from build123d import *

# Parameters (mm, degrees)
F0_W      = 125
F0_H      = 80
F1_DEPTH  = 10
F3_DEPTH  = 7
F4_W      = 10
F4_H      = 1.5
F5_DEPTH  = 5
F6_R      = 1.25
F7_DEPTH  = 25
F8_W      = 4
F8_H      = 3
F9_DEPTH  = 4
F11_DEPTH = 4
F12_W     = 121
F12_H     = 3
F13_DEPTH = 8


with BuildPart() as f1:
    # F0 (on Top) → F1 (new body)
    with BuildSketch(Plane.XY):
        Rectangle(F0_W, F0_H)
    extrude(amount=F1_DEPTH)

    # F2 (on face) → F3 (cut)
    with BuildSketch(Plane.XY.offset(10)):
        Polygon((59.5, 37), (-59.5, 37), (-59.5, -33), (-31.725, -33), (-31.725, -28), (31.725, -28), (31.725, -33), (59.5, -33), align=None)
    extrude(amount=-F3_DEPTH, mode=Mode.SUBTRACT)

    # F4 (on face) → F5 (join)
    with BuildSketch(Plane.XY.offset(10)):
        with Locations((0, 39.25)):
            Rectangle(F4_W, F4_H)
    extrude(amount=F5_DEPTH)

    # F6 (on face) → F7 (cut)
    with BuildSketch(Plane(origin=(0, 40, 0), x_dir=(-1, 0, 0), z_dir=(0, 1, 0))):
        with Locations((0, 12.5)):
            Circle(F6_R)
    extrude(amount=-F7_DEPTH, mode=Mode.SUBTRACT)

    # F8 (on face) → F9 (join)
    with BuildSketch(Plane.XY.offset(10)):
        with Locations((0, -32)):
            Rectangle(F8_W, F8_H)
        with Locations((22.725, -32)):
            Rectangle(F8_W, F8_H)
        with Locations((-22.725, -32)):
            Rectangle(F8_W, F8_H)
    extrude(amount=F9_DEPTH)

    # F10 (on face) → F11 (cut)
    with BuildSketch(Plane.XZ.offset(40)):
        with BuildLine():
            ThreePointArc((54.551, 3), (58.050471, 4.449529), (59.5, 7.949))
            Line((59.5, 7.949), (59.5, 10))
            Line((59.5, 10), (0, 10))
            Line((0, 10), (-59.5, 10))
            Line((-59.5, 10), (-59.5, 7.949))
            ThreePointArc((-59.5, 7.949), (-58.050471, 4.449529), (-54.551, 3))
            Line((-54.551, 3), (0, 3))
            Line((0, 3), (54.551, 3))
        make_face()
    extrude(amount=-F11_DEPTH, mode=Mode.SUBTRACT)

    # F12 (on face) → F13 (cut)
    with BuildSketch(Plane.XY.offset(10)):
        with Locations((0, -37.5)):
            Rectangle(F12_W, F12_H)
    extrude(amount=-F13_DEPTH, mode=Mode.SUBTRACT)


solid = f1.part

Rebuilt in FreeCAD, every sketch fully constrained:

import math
import FreeCAD as App
import Part
import Sketcher

V = App.Vector

doc = App.newDocument("Part")
params = doc.addObject("Spreadsheet::Sheet", "Params")
for row, (alias, value) in enumerate([
    ("sketch1_width", "125 mm"),
    ("sketch1_height", "80 mm"),
    ("pad1_length", "10 mm"),
    ("sketch2_width", "119 mm"),
    ("sketch2_height", "70 mm"),
    ("sketch2_height2", "5 mm"),
    ("sketch2_width2", "63.45 mm"),
    ("pocket1_length", "7 mm"),
    ("sketch3_width", "10 mm"),
    ("sketch3_height", "1.5 mm"),
    ("pad2_length", "5 mm"),
    ("sketch4_diameter", "2.5 mm"),
    ("pocket2_length", "25 mm"),
    ("sketch5_width", "4 mm"),
    ("sketch5_height", "3 mm"),
    ("pad3_length", "4 mm"),
    ("sketch6_width", "119 mm"),
    ("pocket3_length", "4 mm"),
    ("sketch7_width", "121 mm"),
    ("sketch7_height", "3 mm"),
    ("pocket4_length", "8 mm"),
], start=1):
    params.set(f"A{row}", alias)
    params.set(f"B{row}", "=" + value)
    params.setAlias(f"B{row}", alias)

body = doc.addObject("PartDesign::Body", "Body")

# Sketch on XY plane
sketch1 = body.newObject("Sketcher::SketchObject", "Sketch")
sketch1.AttachmentSupport = (doc.getObject("XY_Plane"), [""])
sketch1.MapMode = "FlatFace"
sketch1.addGeometry(Part.LineSegment(V(-62.5, 40, 0), V(-62.5, -40, 0)), False)
sketch1.addGeometry(Part.LineSegment(V(-62.5, -40, 0), V(62.5, -40, 0)), False)
sketch1.addGeometry(Part.LineSegment(V(62.5, -40, 0), V(62.5, 40, 0)), False)
sketch1.addGeometry(Part.LineSegment(V(62.5, 40, 0), V(-62.5, 40, 0)), False)
sketch1.addConstraint(Sketcher.Constraint("Coincident", 0, 2, 1, 1))
sketch1.addConstraint(Sketcher.Constraint("Coincident", 1, 2, 2, 1))
sketch1.addConstraint(Sketcher.Constraint("Coincident", 2, 2, 3, 1))
sketch1.addConstraint(Sketcher.Constraint("Coincident", 3, 2, 0, 1))
sketch1.addConstraint(Sketcher.Constraint("Vertical", 0))
sketch1.addConstraint(Sketcher.Constraint("Horizontal", 1))
sketch1.addConstraint(Sketcher.Constraint("Vertical", 2))
sketch1.addConstraint(Sketcher.Constraint("Horizontal", 3))
sketch1.addConstraint(Sketcher.Constraint("Symmetric", 0, 2, 2, 2, -1, 1))
sketch1.addConstraint(Sketcher.Constraint("DistanceX", 1, 1, 1, 2, 125.0))
sketch1.addConstraint(Sketcher.Constraint("DistanceY", 0, 2, 0, 1, 80.0))
sketch1.setExpression("Constraints[9]", "Params.sketch1_width")
sketch1.setExpression("Constraints[10]", "Params.sketch1_height")
pad1 = body.newObject("PartDesign::Pad", "Pad")
pad1.Profile = sketch1
pad1.setExpression("Length", "Params.pad1_length")

# Sketch on XY plane
sketch2 = body.newObject("Sketcher::SketchObject", "Sketch001")
sketch2.AttachmentSupport = (doc.getObject("XY_Plane"), [""])
sketch2.MapMode = "FlatFace"
sketch2.AttachmentOffset = App.Placement(V(0, 0, 10), App.Rotation())
sketch2.addGeometry(Part.LineSegment(V(59.5, 37, 0), V(-59.5, 37, 0)), False)
sketch2.addGeometry(Part.LineSegment(V(-59.5, 37, 0), V(-59.5, -33, 0)), False)
sketch2.addGeometry(Part.LineSegment(V(-59.5, -33, 0), V(-31.725, -33, 0)), False)
sketch2.addGeometry(Part.LineSegment(V(-31.725, -33, 0), V(-31.725, -28, 0)), False)
sketch2.addGeometry(Part.LineSegment(V(-31.725, -28, 0), V(31.725, -28, 0)), False)
sketch2.addGeometry(Part.LineSegment(V(31.725, -28, 0), V(31.725, -33, 0)), False)
sketch2.addGeometry(Part.LineSegment(V(31.725, -33, 0), V(59.5, -33, 0)), False)
sketch2.addGeometry(Part.LineSegment(V(59.5, -33, 0), V(59.5, 37, 0)), False)
sketch2.addConstraint(Sketcher.Constraint("Coincident", 0, 2, 1, 1))
sketch2.addConstraint(Sketcher.Constraint("Coincident", 1, 2, 2, 1))
sketch2.addConstraint(Sketcher.Constraint("Coincident", 2, 2, 3, 1))
sketch2.addConstraint(Sketcher.Constraint("Coincident", 3, 2, 4, 1))
sketch2.addConstraint(Sketcher.Constraint("Coincident", 4, 2, 5, 1))
sketch2.addConstraint(Sketcher.Constraint("Coincident", 5, 2, 6, 1))
sketch2.addConstraint(Sketcher.Constraint("Coincident", 6, 2, 7, 1))
sketch2.addConstraint(Sketcher.Constraint("Coincident", 7, 2, 0, 1))
sketch2.addConstraint(Sketcher.Constraint("Horizontal", 0))
sketch2.addConstraint(Sketcher.Constraint("Vertical", 1))
sketch2.addConstraint(Sketcher.Constraint("Horizontal", 2))
sketch2.addConstraint(Sketcher.Constraint("Vertical", 3))
sketch2.addConstraint(Sketcher.Constraint("Horizontal", 4))
sketch2.addConstraint(Sketcher.Constraint("Vertical", 5))
sketch2.addConstraint(Sketcher.Constraint("Horizontal", 6))
sketch2.addConstraint(Sketcher.Constraint("Vertical", 7))
sketch2.addConstraint(Sketcher.Constraint("Symmetric", 2, 2, 5, 2, -2))
sketch2.addConstraint(Sketcher.Constraint("Equal", 2, 6))
sketch2.addConstraint(Sketcher.Constraint("DistanceX", 0, 2, 0, 1, 119.0))
sketch2.addConstraint(Sketcher.Constraint("DistanceY", 1, 2, 1, 1, 70.0))
sketch2.addConstraint(Sketcher.Constraint("DistanceY", 3, 1, 3, 2, 5.0))
sketch2.addConstraint(Sketcher.Constraint("DistanceY", -1, 1, 0, 2, 37.0))
sketch2.addConstraint(Sketcher.Constraint("DistanceX", 4, 1, 4, 2, 63.45))
sketch2.setExpression("Constraints[18]", "Params.sketch2_width")
sketch2.setExpression("Constraints[19]", "Params.sketch2_height")
sketch2.setExpression("Constraints[20]", "Params.sketch2_height2")
sketch2.setExpression("Constraints[22]", "Params.sketch2_width2")
pocket1 = body.newObject("PartDesign::Pocket", "Pocket")
pocket1.Profile = sketch2
pocket1.setExpression("Length", "Params.pocket1_length")

# Sketch on XY plane
sketch3 = body.newObject("Sketcher::SketchObject", "Sketch002")
sketch3.AttachmentSupport = (doc.getObject("XY_Plane"), [""])
sketch3.MapMode = "FlatFace"
sketch3.AttachmentOffset = App.Placement(V(0, 0, 10), App.Rotation())
sketch3.addGeometry(Part.LineSegment(V(-5, 40, 0), V(-5, 38.5, 0)), False)
sketch3.addGeometry(Part.LineSegment(V(-5, 38.5, 0), V(5, 38.5, 0)), False)
sketch3.addGeometry(Part.LineSegment(V(5, 38.5, 0), V(5, 40, 0)), False)
sketch3.addGeometry(Part.LineSegment(V(5, 40, 0), V(-5, 40, 0)), False)
sketch3.addConstraint(Sketcher.Constraint("Coincident", 0, 2, 1, 1))
sketch3.addConstraint(Sketcher.Constraint("Coincident", 1, 2, 2, 1))
sketch3.addConstraint(Sketcher.Constraint("Coincident", 2, 2, 3, 1))
sketch3.addConstraint(Sketcher.Constraint("Coincident", 3, 2, 0, 1))
sketch3.addConstraint(Sketcher.Constraint("Vertical", 0))
sketch3.addConstraint(Sketcher.Constraint("Horizontal", 1))
sketch3.addConstraint(Sketcher.Constraint("Vertical", 2))
sketch3.addConstraint(Sketcher.Constraint("Horizontal", 3))
sketch3.addConstraint(Sketcher.Constraint("DistanceX", 1, 1, 1, 2, 10.0))
sketch3.addConstraint(Sketcher.Constraint("DistanceY", 0, 2, 0, 1, 1.5))
sketch3.addConstraint(Sketcher.Constraint("DistanceX", 0, 2, -1, 1, 5.0))
sketch3.addConstraint(Sketcher.Constraint("DistanceY", -1, 1, 2, 2, 40.0))
sketch3.setExpression("Constraints[8]", "Params.sketch3_width")
sketch3.setExpression("Constraints[9]", "Params.sketch3_height")
pad2 = body.newObject("PartDesign::Pad", "Pad001")
pad2.Profile = sketch3
pad2.setExpression("Length", "Params.pad2_length")

# Sketch on XZ plane
sketch4 = body.newObject("Sketcher::SketchObject", "Sketch003")
sketch4.AttachmentSupport = (doc.getObject("XZ_Plane"), [""])
sketch4.MapMode = "FlatFace"
sketch4.AttachmentOffset = App.Placement(V(0, 0, -40), App.Rotation())
sketch4.addGeometry(Part.Circle(V(0, 12.5, 0), V(0, 0, 1), 1.25), False)
sketch4.addConstraint(Sketcher.Constraint("PointOnObject", 0, 3, -2))
sketch4.addConstraint(Sketcher.Constraint("Diameter", 0, 2.5))
sketch4.addConstraint(Sketcher.Constraint("DistanceY", -1, 1, 0, 3, 12.5))
sketch4.setExpression("Constraints[1]", "Params.sketch4_diameter")
pocket2 = body.newObject("PartDesign::Pocket", "Pocket001")
pocket2.Profile = sketch4
pocket2.setExpression("Length", "Params.pocket2_length")
pocket2.Reversed = True

# Sketch on XY plane
sketch5 = body.newObject("Sketcher::SketchObject", "Sketch004")
sketch5.AttachmentSupport = (doc.getObject("XY_Plane"), [""])
sketch5.MapMode = "FlatFace"
sketch5.AttachmentOffset = App.Placement(V(0, 0, 10), App.Rotation())
sketch5.addGeometry(Part.LineSegment(V(-2, -30.5, 0), V(-2, -33.5, 0)), False)
sketch5.addGeometry(Part.LineSegment(V(-2, -33.5, 0), V(2, -33.5, 0)), False)
sketch5.addGeometry(Part.LineSegment(V(2, -33.5, 0), V(2, -30.5, 0)), False)
sketch5.addGeometry(Part.LineSegment(V(2, -30.5, 0), V(-2, -30.5, 0)), False)
sketch5.addGeometry(Part.LineSegment(V(20.725, -30.5, 0), V(20.725, -33.5, 0)), False)
sketch5.addGeometry(Part.LineSegment(V(20.725, -33.5, 0), V(24.725, -33.5, 0)), False)
sketch5.addGeometry(Part.LineSegment(V(24.725, -33.5, 0), V(24.725, -30.5, 0)), False)
sketch5.addGeometry(Part.LineSegment(V(24.725, -30.5, 0), V(20.725, -30.5, 0)), False)
sketch5.addGeometry(Part.LineSegment(V(-24.725, -30.5, 0), V(-24.725, -33.5, 0)), False)
sketch5.addGeometry(Part.LineSegment(V(-24.725, -33.5, 0), V(-20.725, -33.5, 0)), False)
sketch5.addGeometry(Part.LineSegment(V(-20.725, -33.5, 0), V(-20.725, -30.5, 0)), False)
sketch5.addGeometry(Part.LineSegment(V(-20.725, -30.5, 0), V(-24.725, -30.5, 0)), False)
sketch5.addConstraint(Sketcher.Constraint("Coincident", 0, 2, 1, 1))
sketch5.addConstraint(Sketcher.Constraint("Coincident", 1, 2, 2, 1))
sketch5.addConstraint(Sketcher.Constraint("Coincident", 2, 2, 3, 1))
sketch5.addConstraint(Sketcher.Constraint("Coincident", 3, 2, 0, 1))
sketch5.addConstraint(Sketcher.Constraint("Coincident", 4, 2, 5, 1))
sketch5.addConstraint(Sketcher.Constraint("Coincident", 5, 2, 6, 1))
sketch5.addConstraint(Sketcher.Constraint("Coincident", 6, 2, 7, 1))
sketch5.addConstraint(Sketcher.Constraint("Coincident", 7, 2, 4, 1))
sketch5.addConstraint(Sketcher.Constraint("Coincident", 8, 2, 9, 1))
sketch5.addConstraint(Sketcher.Constraint("Coincident", 9, 2, 10, 1))
sketch5.addConstraint(Sketcher.Constraint("Coincident", 10, 2, 11, 1))
sketch5.addConstraint(Sketcher.Constraint("Coincident", 11, 2, 8, 1))
sketch5.addConstraint(Sketcher.Constraint("Vertical", 0))
sketch5.addConstraint(Sketcher.Constraint("Horizontal", 1))
sketch5.addConstraint(Sketcher.Constraint("Vertical", 2))
sketch5.addConstraint(Sketcher.Constraint("Horizontal", 3))
sketch5.addConstraint(Sketcher.Constraint("Vertical", 4))
sketch5.addConstraint(Sketcher.Constraint("Horizontal", 5))
sketch5.addConstraint(Sketcher.Constraint("Vertical", 6))
sketch5.addConstraint(Sketcher.Constraint("Horizontal", 7))
sketch5.addConstraint(Sketcher.Constraint("Vertical", 8))
sketch5.addConstraint(Sketcher.Constraint("Horizontal", 9))
sketch5.addConstraint(Sketcher.Constraint("Vertical", 10))
sketch5.addConstraint(Sketcher.Constraint("Horizontal", 11))
sketch5.addConstraint(Sketcher.Constraint("Symmetric", 5, 2, 8, 2, -2))
sketch5.addConstraint(Sketcher.Constraint("Symmetric", 7, 2, 10, 2, -2))
sketch5.addConstraint(Sketcher.Constraint("Horizontal", 1, 2, 4, 2))
sketch5.addConstraint(Sketcher.Constraint("Horizontal", 3, 2, 6, 2))
sketch5.addConstraint(Sketcher.Constraint("Equal", 3, 5))
sketch5.addConstraint(Sketcher.Constraint("DistanceX", 1, 1, 1, 2, 4.0))
sketch5.addConstraint(Sketcher.Constraint("DistanceY", 0, 2, 0, 1, 3.0))
sketch5.addConstraint(Sketcher.Constraint("DistanceX", 0, 2, -1, 1, 2.0))
sketch5.addConstraint(Sketcher.Constraint("DistanceY", 0, 2, -1, 1, 33.5))
sketch5.addConstraint(Sketcher.Constraint("DistanceX", 8, 2, 4, 2, 45.45))
sketch5.setExpression("Constraints[29]", "Params.sketch5_width")
sketch5.setExpression("Constraints[30]", "Params.sketch5_height")
pad3 = body.newObject("PartDesign::Pad", "Pad002")
pad3.Profile = sketch5
pad3.setExpression("Length", "Params.pad3_length")

# Sketch on XZ plane
sketch6 = body.newObject("Sketcher::SketchObject", "Sketch005")
sketch6.AttachmentSupport = (doc.getObject("XZ_Plane"), [""])
sketch6.MapMode = "FlatFace"
sketch6.AttachmentOffset = App.Placement(V(0, 0, 40), App.Rotation())
sketch6.addGeometry(Part.ArcOfCircle(Part.Circle(V(54.550998, 7.949002, 0), V(0, 0, 1), 4.949002), math.radians(-89.999982), math.radians(-0.000018)), False)
sketch6.addGeometry(Part.LineSegment(V(59.5, 7.949, 0), V(59.5, 10, 0)), False)
sketch6.addGeometry(Part.LineSegment(V(59.5, 10, 0), V(-59.5, 10, 0)), False)
sketch6.addGeometry(Part.LineSegment(V(-59.5, 10, 0), V(-59.5, 7.949, 0)), False)
sketch6.addGeometry(Part.ArcOfCircle(Part.Circle(V(-54.550998, 7.949002, 0), V(0, 0, 1), 4.949002), math.radians(-179.999982), math.radians(-90.000018)), False)
sketch6.addGeometry(Part.LineSegment(V(-54.551, 3, 0), V(54.551, 3, 0)), False)
sketch6.addConstraint(Sketcher.Constraint("Tangent", 0, 2, 1, 1))
sketch6.addConstraint(Sketcher.Constraint("Coincident", 1, 2, 2, 1))
sketch6.addConstraint(Sketcher.Constraint("Coincident", 2, 2, 3, 1))
sketch6.addConstraint(Sketcher.Constraint("Tangent", 3, 2, 4, 1))
sketch6.addConstraint(Sketcher.Constraint("Tangent", 4, 2, 5, 1))
sketch6.addConstraint(Sketcher.Constraint("Tangent", 5, 2, 0, 1))
sketch6.addConstraint(Sketcher.Constraint("Vertical", 1))
sketch6.addConstraint(Sketcher.Constraint("Horizontal", 2))
sketch6.addConstraint(Sketcher.Constraint("Vertical", 3))
sketch6.addConstraint(Sketcher.Constraint("Horizontal", 5))
sketch6.addConstraint(Sketcher.Constraint("Equal", 0, 4))
sketch6.addConstraint(Sketcher.Constraint("DistanceX", 2, 2, 2, 1, 119.0))
sketch6.addConstraint(Sketcher.Constraint("DistanceY", -1, 1, 1, 2, 10.0))
sketch6.addConstraint(Sketcher.Constraint("DistanceY", -1, 1, 4, 2, 3.0))
sketch6.addConstraint(Sketcher.Constraint("Radius", 0, 4.949002))
sketch6.addConstraint(Sketcher.Constraint("DistanceX", -1, 1, 0, 2, 59.5))
sketch6.setExpression("Constraints[11]", "Params.sketch6_width")
pocket3 = body.newObject("PartDesign::Pocket", "Pocket002")
pocket3.Profile = sketch6
pocket3.setExpression("Length", "Params.pocket3_length")

# Sketch on XY plane
sketch7 = body.newObject("Sketcher::SketchObject", "Sketch006")
sketch7.AttachmentSupport = (doc.getObject("XY_Plane"), [""])
sketch7.MapMode = "FlatFace"
sketch7.AttachmentOffset = App.Placement(V(0, 0, 10), App.Rotation())
sketch7.addGeometry(Part.LineSegment(V(-60.5, -36, 0), V(-60.5, -39, 0)), False)
sketch7.addGeometry(Part.LineSegment(V(-60.5, -39, 0), V(60.5, -39, 0)), False)
sketch7.addGeometry(Part.LineSegment(V(60.5, -39, 0), V(60.5, -36, 0)), False)
sketch7.addGeometry(Part.LineSegment(V(60.5, -36, 0), V(-60.5, -36, 0)), False)
sketch7.addConstraint(Sketcher.Constraint("Coincident", 0, 2, 1, 1))
sketch7.addConstraint(Sketcher.Constraint("Coincident", 1, 2, 2, 1))
sketch7.addConstraint(Sketcher.Constraint("Coincident", 2, 2, 3, 1))
sketch7.addConstraint(Sketcher.Constraint("Coincident", 3, 2, 0, 1))
sketch7.addConstraint(Sketcher.Constraint("Vertical", 0))
sketch7.addConstraint(Sketcher.Constraint("Horizontal", 1))
sketch7.addConstraint(Sketcher.Constraint("Vertical", 2))
sketch7.addConstraint(Sketcher.Constraint("Horizontal", 3))
sketch7.addConstraint(Sketcher.Constraint("DistanceX", 1, 1, 1, 2, 121.0))
sketch7.addConstraint(Sketcher.Constraint("DistanceY", 0, 2, 0, 1, 3.0))
sketch7.addConstraint(Sketcher.Constraint("DistanceY", 0, 2, -1, 1, 39.0))
sketch7.addConstraint(Sketcher.Constraint("DistanceX", 0, 2, -1, 1, 60.5))
sketch7.setExpression("Constraints[8]", "Params.sketch7_width")
sketch7.setExpression("Constraints[9]", "Params.sketch7_height")
pocket4 = body.newObject("PartDesign::Pocket", "Pocket003")
pocket4.Profile = sketch7
pocket4.setExpression("Length", "Params.pocket4_length")

doc.recompute()
